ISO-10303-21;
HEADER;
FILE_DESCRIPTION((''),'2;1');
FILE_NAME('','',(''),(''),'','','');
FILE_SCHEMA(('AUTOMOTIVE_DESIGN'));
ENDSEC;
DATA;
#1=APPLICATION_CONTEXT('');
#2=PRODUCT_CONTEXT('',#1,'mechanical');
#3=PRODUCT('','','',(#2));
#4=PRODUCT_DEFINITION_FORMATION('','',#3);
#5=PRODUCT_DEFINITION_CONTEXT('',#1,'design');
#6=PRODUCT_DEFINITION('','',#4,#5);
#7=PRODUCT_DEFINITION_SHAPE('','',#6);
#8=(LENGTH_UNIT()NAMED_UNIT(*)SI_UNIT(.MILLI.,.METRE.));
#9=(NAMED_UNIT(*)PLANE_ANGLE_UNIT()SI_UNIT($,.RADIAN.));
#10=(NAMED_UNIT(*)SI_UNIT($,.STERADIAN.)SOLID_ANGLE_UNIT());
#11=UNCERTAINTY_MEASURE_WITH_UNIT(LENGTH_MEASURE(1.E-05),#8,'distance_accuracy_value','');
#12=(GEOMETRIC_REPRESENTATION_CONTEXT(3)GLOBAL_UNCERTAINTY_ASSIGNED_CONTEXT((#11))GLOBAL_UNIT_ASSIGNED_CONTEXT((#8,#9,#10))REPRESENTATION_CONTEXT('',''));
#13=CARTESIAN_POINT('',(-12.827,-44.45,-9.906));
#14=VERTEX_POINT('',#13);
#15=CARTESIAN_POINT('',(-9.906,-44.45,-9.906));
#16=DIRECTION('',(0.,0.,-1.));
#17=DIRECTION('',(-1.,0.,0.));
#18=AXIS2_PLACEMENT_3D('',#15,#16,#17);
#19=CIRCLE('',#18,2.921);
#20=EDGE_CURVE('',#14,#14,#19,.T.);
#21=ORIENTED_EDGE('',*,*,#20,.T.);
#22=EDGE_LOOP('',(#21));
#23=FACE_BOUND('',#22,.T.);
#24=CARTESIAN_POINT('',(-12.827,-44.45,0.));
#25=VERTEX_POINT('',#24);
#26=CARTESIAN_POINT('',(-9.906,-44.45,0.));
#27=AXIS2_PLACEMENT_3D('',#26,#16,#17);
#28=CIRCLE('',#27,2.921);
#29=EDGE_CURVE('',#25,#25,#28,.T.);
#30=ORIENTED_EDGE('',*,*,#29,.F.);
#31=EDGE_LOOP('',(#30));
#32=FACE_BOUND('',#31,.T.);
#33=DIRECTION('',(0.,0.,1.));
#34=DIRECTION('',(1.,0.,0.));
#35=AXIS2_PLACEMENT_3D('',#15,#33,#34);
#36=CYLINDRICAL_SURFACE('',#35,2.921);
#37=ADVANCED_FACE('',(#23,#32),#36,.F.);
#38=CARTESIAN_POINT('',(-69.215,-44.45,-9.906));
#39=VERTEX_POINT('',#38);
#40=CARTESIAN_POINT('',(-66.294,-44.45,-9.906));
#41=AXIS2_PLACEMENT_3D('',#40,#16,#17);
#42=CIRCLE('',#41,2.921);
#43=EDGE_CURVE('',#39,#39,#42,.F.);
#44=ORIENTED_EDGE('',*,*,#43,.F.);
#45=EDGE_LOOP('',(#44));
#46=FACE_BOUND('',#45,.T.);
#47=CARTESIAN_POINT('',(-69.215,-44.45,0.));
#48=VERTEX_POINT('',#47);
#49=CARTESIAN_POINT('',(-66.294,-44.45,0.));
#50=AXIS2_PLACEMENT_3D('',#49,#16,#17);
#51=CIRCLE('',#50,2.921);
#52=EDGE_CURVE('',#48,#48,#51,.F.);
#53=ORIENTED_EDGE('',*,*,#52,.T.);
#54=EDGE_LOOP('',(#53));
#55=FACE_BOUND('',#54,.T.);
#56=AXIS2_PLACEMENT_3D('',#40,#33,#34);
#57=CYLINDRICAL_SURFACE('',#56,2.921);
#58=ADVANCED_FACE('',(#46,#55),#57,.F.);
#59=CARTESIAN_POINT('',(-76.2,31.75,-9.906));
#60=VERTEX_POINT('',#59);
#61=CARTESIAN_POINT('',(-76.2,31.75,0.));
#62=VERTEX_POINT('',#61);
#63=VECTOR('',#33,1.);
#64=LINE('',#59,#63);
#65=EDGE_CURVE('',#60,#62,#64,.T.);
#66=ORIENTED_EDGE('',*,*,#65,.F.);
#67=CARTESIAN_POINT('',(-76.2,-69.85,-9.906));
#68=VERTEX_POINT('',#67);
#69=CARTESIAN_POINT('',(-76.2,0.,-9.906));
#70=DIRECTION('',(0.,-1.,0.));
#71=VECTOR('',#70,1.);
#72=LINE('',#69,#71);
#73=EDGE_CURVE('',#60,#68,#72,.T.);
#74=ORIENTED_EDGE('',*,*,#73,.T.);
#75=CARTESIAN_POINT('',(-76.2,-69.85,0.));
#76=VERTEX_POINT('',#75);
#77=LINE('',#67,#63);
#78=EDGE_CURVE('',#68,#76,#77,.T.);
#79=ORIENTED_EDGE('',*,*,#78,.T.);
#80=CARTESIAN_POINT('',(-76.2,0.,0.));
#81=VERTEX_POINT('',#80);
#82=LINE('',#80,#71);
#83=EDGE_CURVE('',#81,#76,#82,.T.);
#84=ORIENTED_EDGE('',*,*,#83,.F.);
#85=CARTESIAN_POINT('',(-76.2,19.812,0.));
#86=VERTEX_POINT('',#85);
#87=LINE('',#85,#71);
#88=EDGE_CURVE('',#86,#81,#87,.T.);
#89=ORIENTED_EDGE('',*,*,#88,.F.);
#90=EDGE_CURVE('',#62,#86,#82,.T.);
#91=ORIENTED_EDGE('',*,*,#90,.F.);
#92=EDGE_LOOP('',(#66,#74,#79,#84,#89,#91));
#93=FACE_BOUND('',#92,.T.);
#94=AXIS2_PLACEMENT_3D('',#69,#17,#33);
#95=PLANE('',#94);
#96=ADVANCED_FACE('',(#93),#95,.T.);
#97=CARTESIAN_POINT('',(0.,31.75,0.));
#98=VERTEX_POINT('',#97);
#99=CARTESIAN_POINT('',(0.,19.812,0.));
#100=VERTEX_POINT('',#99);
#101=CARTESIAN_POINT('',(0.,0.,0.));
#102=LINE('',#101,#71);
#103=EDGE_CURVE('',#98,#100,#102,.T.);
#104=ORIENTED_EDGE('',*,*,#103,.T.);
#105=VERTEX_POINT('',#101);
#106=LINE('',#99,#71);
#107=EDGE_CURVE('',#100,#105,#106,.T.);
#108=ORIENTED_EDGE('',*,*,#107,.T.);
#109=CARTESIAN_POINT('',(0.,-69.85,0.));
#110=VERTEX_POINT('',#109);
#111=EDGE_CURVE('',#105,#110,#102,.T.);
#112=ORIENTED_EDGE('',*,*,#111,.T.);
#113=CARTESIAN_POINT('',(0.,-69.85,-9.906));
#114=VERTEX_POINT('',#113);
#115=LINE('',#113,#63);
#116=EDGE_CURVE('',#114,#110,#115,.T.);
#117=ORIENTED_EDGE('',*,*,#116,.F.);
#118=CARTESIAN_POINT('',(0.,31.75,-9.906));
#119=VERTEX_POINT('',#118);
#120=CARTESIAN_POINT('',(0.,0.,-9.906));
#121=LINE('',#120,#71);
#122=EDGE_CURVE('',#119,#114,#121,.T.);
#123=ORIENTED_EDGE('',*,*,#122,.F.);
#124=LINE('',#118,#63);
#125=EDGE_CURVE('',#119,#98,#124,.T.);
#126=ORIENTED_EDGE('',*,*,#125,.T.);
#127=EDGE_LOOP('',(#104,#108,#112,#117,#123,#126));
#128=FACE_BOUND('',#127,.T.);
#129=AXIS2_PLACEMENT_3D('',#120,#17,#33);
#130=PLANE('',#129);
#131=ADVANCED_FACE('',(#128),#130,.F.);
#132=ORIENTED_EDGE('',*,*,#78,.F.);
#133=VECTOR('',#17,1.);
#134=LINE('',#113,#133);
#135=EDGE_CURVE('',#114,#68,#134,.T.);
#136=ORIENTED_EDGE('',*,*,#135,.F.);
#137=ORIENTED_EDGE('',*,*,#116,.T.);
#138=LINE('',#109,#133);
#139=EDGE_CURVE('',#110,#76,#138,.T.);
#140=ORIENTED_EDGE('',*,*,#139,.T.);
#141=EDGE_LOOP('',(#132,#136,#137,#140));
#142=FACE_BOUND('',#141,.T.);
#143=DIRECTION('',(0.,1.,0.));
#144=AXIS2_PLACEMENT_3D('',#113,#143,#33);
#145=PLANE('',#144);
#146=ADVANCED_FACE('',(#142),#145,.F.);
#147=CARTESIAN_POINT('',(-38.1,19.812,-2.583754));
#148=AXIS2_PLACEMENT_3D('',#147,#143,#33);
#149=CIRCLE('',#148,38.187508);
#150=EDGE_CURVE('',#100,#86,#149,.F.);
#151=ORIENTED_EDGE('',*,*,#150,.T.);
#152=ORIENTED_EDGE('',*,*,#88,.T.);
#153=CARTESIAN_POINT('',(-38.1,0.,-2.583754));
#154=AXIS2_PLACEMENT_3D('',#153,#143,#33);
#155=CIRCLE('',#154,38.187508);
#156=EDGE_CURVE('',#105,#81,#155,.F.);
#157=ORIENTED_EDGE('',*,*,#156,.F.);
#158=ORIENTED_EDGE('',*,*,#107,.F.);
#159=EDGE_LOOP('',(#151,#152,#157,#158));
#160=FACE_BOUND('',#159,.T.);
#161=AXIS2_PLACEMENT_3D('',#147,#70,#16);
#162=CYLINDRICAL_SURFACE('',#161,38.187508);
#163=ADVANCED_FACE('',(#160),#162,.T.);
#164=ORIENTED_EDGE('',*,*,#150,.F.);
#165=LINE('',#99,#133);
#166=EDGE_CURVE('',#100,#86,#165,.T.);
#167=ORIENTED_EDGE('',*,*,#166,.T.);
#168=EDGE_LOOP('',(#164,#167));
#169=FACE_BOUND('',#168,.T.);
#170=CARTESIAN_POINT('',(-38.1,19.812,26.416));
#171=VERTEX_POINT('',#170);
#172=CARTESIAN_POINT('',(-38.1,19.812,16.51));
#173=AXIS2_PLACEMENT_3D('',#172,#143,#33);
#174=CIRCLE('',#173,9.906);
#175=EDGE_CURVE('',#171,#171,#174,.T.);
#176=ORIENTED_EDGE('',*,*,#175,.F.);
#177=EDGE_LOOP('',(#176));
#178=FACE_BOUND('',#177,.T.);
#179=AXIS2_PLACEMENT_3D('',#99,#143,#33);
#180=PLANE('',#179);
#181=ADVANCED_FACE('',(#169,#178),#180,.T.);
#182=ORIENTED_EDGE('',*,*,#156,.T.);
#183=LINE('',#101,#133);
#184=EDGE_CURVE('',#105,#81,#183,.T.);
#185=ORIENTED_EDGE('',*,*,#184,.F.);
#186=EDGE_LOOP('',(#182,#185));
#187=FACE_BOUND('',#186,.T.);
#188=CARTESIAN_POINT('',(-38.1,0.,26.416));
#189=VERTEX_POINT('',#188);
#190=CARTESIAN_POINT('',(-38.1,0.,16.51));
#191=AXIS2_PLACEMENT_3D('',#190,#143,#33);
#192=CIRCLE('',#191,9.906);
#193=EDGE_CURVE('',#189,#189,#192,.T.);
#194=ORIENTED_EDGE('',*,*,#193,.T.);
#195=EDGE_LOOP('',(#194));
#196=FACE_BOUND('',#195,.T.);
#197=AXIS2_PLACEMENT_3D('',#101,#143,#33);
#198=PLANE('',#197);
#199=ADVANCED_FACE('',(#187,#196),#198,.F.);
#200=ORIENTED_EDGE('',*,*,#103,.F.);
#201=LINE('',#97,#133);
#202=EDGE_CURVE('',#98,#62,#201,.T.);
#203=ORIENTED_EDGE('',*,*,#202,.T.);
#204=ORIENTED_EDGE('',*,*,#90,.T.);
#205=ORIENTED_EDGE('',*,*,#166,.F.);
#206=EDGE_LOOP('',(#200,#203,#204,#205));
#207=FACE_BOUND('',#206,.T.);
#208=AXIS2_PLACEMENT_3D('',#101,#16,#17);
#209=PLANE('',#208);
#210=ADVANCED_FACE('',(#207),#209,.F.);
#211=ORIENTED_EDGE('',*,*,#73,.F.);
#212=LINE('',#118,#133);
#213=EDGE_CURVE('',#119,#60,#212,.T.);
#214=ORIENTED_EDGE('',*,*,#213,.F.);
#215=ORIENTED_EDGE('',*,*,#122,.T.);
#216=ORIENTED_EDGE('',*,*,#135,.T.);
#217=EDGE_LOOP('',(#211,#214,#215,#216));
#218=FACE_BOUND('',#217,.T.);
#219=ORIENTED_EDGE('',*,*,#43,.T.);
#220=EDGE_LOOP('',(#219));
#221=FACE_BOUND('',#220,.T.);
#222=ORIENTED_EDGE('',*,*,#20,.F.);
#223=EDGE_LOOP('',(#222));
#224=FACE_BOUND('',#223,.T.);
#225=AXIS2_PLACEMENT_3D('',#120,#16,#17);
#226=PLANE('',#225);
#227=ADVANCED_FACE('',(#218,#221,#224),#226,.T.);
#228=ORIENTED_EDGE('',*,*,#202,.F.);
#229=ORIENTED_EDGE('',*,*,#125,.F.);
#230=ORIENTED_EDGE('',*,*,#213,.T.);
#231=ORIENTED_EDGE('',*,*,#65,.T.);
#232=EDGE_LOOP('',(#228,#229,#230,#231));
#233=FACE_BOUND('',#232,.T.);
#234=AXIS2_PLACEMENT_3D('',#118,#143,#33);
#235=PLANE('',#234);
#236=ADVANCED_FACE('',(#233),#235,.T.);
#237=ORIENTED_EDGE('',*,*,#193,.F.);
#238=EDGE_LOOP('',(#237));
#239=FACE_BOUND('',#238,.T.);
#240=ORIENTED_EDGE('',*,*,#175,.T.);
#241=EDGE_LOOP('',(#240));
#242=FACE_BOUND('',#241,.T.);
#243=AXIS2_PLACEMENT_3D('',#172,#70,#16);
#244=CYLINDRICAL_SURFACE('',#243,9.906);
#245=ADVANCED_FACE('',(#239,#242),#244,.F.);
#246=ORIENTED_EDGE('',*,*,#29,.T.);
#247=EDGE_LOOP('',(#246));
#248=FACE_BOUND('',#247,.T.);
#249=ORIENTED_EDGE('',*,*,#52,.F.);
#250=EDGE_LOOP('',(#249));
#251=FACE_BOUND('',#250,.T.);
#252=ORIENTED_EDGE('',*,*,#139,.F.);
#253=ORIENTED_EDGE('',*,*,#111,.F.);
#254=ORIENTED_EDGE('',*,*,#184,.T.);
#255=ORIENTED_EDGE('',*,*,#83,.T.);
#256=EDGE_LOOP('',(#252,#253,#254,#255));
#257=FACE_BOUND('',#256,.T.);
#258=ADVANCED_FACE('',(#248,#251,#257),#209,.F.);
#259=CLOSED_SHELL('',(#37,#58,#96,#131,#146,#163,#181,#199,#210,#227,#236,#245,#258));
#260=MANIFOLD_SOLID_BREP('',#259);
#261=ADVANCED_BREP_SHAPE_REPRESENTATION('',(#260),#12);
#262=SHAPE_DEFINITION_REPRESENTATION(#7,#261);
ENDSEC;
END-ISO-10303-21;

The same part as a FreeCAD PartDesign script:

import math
import FreeCAD as App
import Part
import Sketcher
from FreeCAD import Vector
Q = App.Units.Quantity

doc = App.newDocument("Part")
body = doc.addObject("PartDesign::Body", "Body")

# Sketch on XZ plane
sketch1 = body.newObject("Sketcher::SketchObject", "Sketch")
sketch1.AttachmentSupport = (doc.getObject("XZ_Plane"), [""])
sketch1.MapMode = "FlatFace"
sketch1.addGeometry(Part.LineSegment(Vector(0, 0, 0), Vector(-76.2, 0, 0)), False)
sketch1.addGeometry(Part.ArcOfCircle(Part.Circle(Vector(-38.1, -2.583754, 0), Vector(0, 0, 1), 38.187508), math.radians(90), math.radians(176.120423)), False)
sketch1.addGeometry(Part.ArcOfCircle(Part.Circle(Vector(-38.1, -2.583754, 0), Vector(0, 0, 1), 38.187508), math.radians(3.879577), math.radians(90)), False)
sketch1.addGeometry(Part.ArcOfCircle(Part.Circle(Vector(-38.1, 16.51, 0), Vector(0, 0, 1), 9.906), math.radians(-90), math.radians(0)), False)
sketch1.addGeometry(Part.ArcOfCircle(Part.Circle(Vector(-38.1, 16.51, 0), Vector(0, 0, 1), 9.906), math.radians(0), math.radians(90)), False)
sketch1.addGeometry(Part.ArcOfCircle(Part.Circle(Vector(-38.1, 16.51, 0), Vector(0, 0, 1), 9.906), math.radians(90), math.radians(270)), False)
sketch1.addConstraint(Sketcher.Constraint("Coincident", 0, 2, 1, 2))
sketch1.addConstraint(Sketcher.Constraint("Tangent", 1, 1, 2, 2))
sketch1.addConstraint(Sketcher.Constraint("Coincident", 2, 1, 0, 1))
sketch1.addConstraint(Sketcher.Constraint("Tangent", 3, 2, 4, 1))
sketch1.addConstraint(Sketcher.Constraint("Tangent", 4, 2, 5, 1))
sketch1.addConstraint(Sketcher.Constraint("Tangent", 5, 2, 3, 1))
sketch1.addConstraint(Sketcher.Constraint("Horizontal", 0))
sketch1.addConstraint(Sketcher.Constraint("Coincident", 2, 1, -1, 1))
sketch1.addConstraint(Sketcher.Constraint("Equal", 1, 2))
sketch1.addConstraint(Sketcher.Constraint("Horizontal", 5, 3, 3, 2))
sketch1.addConstraint(Sketcher.Constraint("Vertical", 2, 3, 3, 3))
sketch1.addConstraint(Sketcher.Constraint("Vertical", 5, 3, 1, 1))
sketch1.addConstraint(Sketcher.Constraint("Vertical", 1, 1, 4, 2))
sketch1.addConstraint(Sketcher.Constraint("Vertical", 4, 2, 5, 2))
sketch1.addConstraint(Sketcher.Constraint("DistanceX", 0, 2, 0, 1, Q("3 in")))
sketch1.addConstraint(Sketcher.Constraint("Radius", 3, Q("0.39 in")))
sketch1.addConstraint(Sketcher.Constraint("DistanceY", -1, 1, 3, 3, Q("0.65 in")))
sketch1.addConstraint(Sketcher.Constraint("Radius", 1, Q("38.187508 mm")))
pad1 = body.newObject("PartDesign::Pad", "Pad")
pad1.Profile = sketch1
pad1.Length = Q("0.78 in")
pad1.Reversed = True

# Sketch on XY plane
sketch2 = body.newObject("Sketcher::SketchObject", "Sketch001")
sketch2.AttachmentSupport = (doc.getObject("XY_Plane"), [""])
sketch2.MapMode = "FlatFace"
sketch2.addGeometry(Part.LineSegment(Vector(0, -69.85, 0), Vector(-76.2, -69.85, 0)), False)
sketch2.addGeometry(Part.LineSegment(Vector(-76.2, -69.85, 0), Vector(-76.2, 31.75, 0)), False)
sketch2.addGeometry(Part.LineSegment(Vector(-76.2, 31.75, 0), Vector(0, 31.75, 0)), False)
sketch2.addGeometry(Part.LineSegment(Vector(0, 31.75, 0), Vector(0, -69.85, 0)), False)
sketch2.addGeometry(Part.Circle(Vector(-9.906, -44.45, 0), Vector(0, 0, 1), 2.921), False)
sketch2.addGeometry(Part.Circle(Vector(-66.294, -44.45, 0), Vector(0, 0, 1), 2.921), False)
sketch2.addConstraint(Sketcher.Constraint("Coincident", 0, 2, 1, 1))
sketch2.addConstraint(Sketcher.Constraint("Coincident", 1, 2, 2, 1))
sketch2.addConstraint(Sketcher.Constraint("Coincident", 2, 2, 3, 1))
sketch2.addConstraint(Sketcher.Constraint("Coincident", 3, 2, 0, 1))
sketch2.addConstraint(Sketcher.Constraint("Horizontal", 0))
sketch2.addConstraint(Sketcher.Constraint("Vertical", 1))
sketch2.addConstraint(Sketcher.Constraint("Horizontal", 2))
sketch2.addConstraint(Sketcher.Constraint("Vertical", 3))
sketch2.addConstraint(Sketcher.Constraint("Equal", 4, 5))
sketch2.addConstraint(Sketcher.Constraint("PointOnObject", 2, 2, -2))
sketch2.addConstraint(Sketcher.Constraint("Horizontal", 4, 3, 5, 3))
sketch2.addConstraint(Sketcher.Constraint("Diameter", 4, Q("0.23 in")))
sketch2.addConstraint(Sketcher.Constraint("DistanceX", 0, 2, 0, 1, Q("3 in")))
sketch2.addConstraint(Sketcher.Constraint("DistanceY", 1, 1, 1, 2, Q("4 in")))
sketch2.addConstraint(Sketcher.Constraint("DistanceY", 0, 2, 5, 3, Q("1 in")))
sketch2.addConstraint(Sketcher.Constraint("DistanceX", 4, 3, -1, 1, Q("0.39 in")))
sketch2.addConstraint(Sketcher.Constraint("DistanceY", 4, 3, -1, 1, Q("1.75 in")))
sketch2.addConstraint(Sketcher.Constraint("DistanceX", 5, 3, -1, 1, Q("2.61 in")))
pad2 = body.newObject("PartDesign::Pad", "Pad001")
pad2.Profile = sketch2
pad2.Length = Q("0.39 in")
pad2.Reversed = True

doc.recompute()
